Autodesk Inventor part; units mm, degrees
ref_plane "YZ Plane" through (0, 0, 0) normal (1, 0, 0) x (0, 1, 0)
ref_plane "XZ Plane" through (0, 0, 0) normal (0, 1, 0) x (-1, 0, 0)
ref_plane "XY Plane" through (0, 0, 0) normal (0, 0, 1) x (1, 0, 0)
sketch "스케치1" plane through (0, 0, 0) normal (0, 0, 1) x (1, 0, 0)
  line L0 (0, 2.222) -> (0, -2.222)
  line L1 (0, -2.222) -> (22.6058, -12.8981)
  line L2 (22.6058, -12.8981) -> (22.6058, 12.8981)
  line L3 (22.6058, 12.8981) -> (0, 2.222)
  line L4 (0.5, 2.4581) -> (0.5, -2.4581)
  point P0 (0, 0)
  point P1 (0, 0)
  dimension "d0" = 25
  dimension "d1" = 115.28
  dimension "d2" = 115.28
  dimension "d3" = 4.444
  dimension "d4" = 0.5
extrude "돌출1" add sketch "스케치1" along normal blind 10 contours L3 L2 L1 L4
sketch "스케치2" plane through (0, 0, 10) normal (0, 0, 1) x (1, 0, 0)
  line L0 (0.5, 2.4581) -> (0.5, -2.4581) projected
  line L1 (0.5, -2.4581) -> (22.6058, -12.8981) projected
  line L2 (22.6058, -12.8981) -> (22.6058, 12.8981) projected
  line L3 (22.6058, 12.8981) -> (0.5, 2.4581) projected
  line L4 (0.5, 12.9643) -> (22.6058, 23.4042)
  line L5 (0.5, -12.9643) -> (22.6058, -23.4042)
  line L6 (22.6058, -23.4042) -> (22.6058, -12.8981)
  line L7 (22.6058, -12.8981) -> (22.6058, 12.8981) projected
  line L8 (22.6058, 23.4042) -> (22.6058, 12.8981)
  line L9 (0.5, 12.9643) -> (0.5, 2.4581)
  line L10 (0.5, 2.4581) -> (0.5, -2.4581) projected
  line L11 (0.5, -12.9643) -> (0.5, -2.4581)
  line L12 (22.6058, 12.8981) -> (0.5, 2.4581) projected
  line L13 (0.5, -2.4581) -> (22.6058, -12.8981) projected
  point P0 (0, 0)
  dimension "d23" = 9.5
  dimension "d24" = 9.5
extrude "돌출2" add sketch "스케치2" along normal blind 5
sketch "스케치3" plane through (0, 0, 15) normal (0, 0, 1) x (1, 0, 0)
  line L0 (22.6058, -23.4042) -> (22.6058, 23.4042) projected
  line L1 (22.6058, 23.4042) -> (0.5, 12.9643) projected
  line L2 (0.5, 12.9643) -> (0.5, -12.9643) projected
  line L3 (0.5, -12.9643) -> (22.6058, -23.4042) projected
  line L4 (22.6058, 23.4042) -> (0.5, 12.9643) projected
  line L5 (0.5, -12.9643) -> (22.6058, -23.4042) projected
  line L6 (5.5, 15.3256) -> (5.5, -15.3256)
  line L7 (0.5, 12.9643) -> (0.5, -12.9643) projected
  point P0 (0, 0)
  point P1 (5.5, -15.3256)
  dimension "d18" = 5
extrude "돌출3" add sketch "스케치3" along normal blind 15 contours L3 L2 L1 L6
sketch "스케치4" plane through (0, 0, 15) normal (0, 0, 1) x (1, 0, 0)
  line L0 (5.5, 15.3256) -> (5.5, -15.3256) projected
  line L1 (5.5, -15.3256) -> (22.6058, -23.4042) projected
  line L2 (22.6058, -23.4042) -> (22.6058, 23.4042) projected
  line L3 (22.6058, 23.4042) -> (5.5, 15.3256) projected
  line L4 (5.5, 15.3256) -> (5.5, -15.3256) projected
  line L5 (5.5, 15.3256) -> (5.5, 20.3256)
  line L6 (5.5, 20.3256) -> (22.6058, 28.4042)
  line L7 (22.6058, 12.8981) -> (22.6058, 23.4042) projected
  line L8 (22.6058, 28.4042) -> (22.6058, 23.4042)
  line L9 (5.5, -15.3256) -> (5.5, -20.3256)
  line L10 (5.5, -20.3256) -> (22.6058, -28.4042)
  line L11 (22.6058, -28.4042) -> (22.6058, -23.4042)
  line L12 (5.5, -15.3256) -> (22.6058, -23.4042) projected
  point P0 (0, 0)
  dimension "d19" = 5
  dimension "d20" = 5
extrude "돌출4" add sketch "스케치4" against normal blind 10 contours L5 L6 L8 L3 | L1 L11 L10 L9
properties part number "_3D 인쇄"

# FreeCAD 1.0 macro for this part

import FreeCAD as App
import Part
import Sketcher
Q = App.Units.Quantity

doc = App.newDocument("Part")
body = doc.addObject("PartDesign::Body", "Body")

sketch1 = body.newObject("Sketcher::SketchObject", "Sketch")
sketch1.AttachmentSupport = (doc.getObject("XY_Plane"), [""])
sketch1.MapMode = "FlatFace"
sketch1.addGeometry(Part.LineSegment(App.Vector(22.6, 12.9, 0), App.Vector(0.5, 2.5, 0)), False)
sketch1.addGeometry(Part.LineSegment(App.Vector(0.5, 2.5, 0), App.Vector(0.5, -2.5, 0)), False)
sketch1.addGeometry(Part.LineSegment(App.Vector(0.5, -2.5, 0), App.Vector(22.6, -12.9, 0)), False)
sketch1.addGeometry(Part.LineSegment(App.Vector(22.6, -12.9, 0), App.Vector(22.6, 12.9, 0)), False)
sketch1.addConstraint(Sketcher.Constraint("Coincident", 0, 2, 1, 1))
sketch1.addConstraint(Sketcher.Constraint("Coincident", 1, 2, 2, 1))
sketch1.addConstraint(Sketcher.Constraint("Coincident", 2, 2, 3, 1))
sketch1.addConstraint(Sketcher.Constraint("Coincident", 3, 2, 0, 1))
sketch1.addConstraint(Sketcher.Constraint("Vertical", 1))
sketch1.addConstraint(Sketcher.Constraint("Vertical", 3))
sketch1.addConstraint(Sketcher.Constraint("Equal", 0, 2))
sketch1.addConstraint(Sketcher.Constraint("DistanceX", -1, 1, 0, 2, Q("0.5 mm")))
sketch1.addConstraint(Sketcher.Constraint("Angle", 0, Q("-154.72 deg")))
sketch1.addConstraint(Sketcher.Constraint("DistanceY", 2, 2, 1, 2, Q("10.44 mm")))
sketch1.addConstraint(Sketcher.Constraint("DistanceY", 1, 2, 1, 1, Q("4.9162 mm")))
sketch1.addConstraint(Sketcher.Constraint("DistanceY", 1, 2, -1, 1, Q("2.458 mm")))
pad1 = body.newObject("PartDesign::Pad", "Pad")
pad1.Profile = sketch1
pad1.Length = 10

sketch2 = body.newObject("Sketcher::SketchObject", "Sketch001")
sketch2.AttachmentSupport = (doc.getObject("XY_Plane"), [""])
sketch2.MapMode = "FlatFace"
sketch2.AttachmentOffset = App.Placement(App.Vector(0, 0, 10), App.Rotation())
sketch2.addGeometry(Part.LineSegment(App.Vector(23, 23, 0), App.Vector(0, 13, 0)), False)
sketch2.addGeometry(Part.LineSegment(App.Vector(0, 13, 0), App.Vector(0, -13, 0)), False)
sketch2.addGeometry(Part.LineSegment(App.Vector(0, -13, 0), App.Vector(23, -23, 0)), False)
sketch2.addGeometry(Part.LineSegment(App.Vector(23, -23, 0), App.Vector(23, 23, 0)), False)
sketch2.addConstraint(Sketcher.Constraint("Coincident", 0, 2, 1, 1))
sketch2.addConstraint(Sketcher.Constraint("Coincident", 1, 2, 2, 1))
sketch2.addConstraint(Sketcher.Constraint("Coincident", 2, 2, 3, 1))
sketch2.addConstraint(Sketcher.Constraint("Coincident", 3, 2, 0, 1))
sketch2.addConstraint(Sketcher.Constraint("Vertical", 1))
sketch2.addConstraint(Sketcher.Constraint("Vertical", 3))
sketch2.addConstraint(Sketcher.Constraint("Equal", 0, 2))
sketch2.addConstraint(Sketcher.Constraint("DistanceX", -1, 1, 0, 2, Q("0.5 mm")))
sketch2.addConstraint(Sketcher.Constraint("Angle", 0, Q("-154.72 deg")))
sketch2.addConstraint(Sketcher.Constraint("DistanceY", 2, 2, 1, 2, Q("10.44 mm")))
sketch2.addConstraint(Sketcher.Constraint("DistanceY", 1, 2, 1, 1, Q("25.9286 mm")))
sketch2.addConstraint(Sketcher.Constraint("DistanceY", -1, 1, 0, 2, Q("12.9643 mm")))
pad2 = body.newObject("PartDesign::Pad", "Pad001")
pad2.Profile = sketch2
pad2.Length = 5

sketch3 = body.newObject("Sketcher::SketchObject", "Sketch002")
sketch3.AttachmentSupport = (doc.getObject("XY_Plane"), [""])
sketch3.MapMode = "FlatFace"
sketch3.AttachmentOffset = App.Placement(App.Vector(0, 0, 15), App.Rotation())
sketch3.addGeometry(Part.LineSegment(App.Vector(0, -13, 0), App.Vector(5, -15, 0)), False)
sketch3.addGeometry(Part.LineSegment(App.Vector(6, -15, 0), App.Vector(6, 15, 0)), False)
sketch3.addGeometry(Part.LineSegment(App.Vector(5, 15, 0), App.Vector(0, 13, 0)), False)
sketch3.addGeometry(Part.LineSegment(App.Vector(0, 13, 0), App.Vector(0, -13, 0)), False)
sketch3.addConstraint(Sketcher.Constraint("Coincident", 0, 2, 1, 1))
sketch3.addConstraint(Sketcher.Constraint("Coincident", 1, 2, 2, 1))
sketch3.addConstraint(Sketcher.Constraint("Coincident", 2, 2, 3, 1))
sketch3.addConstraint(Sketcher.Constraint("Coincident", 3, 2, 0, 1))
sketch3.addConstraint(Sketcher.Constraint("Vertical", 1))
sketch3.addConstraint(Sketcher.Constraint("Vertical", 3))
sketch3.addConstraint(Sketcher.Constraint("Equal", 0, 2))
sketch3.addConstraint(Sketcher.Constraint("DistanceX", 2, 2, 1, 2, Q("5 mm")))
sketch3.addConstraint(Sketcher.Constraint("DistanceX", -1, 1, 0, 2, Q("5.5 mm")))
sketch3.addConstraint(Sketcher.Constraint("Angle", 0, Q("-25.28 deg")))
sketch3.addConstraint(Sketcher.Constraint("DistanceY", 0, 2, 2, 2, Q("28.29 mm")))
sketch3.addConstraint(Sketcher.Constraint("DistanceY", 0, 2, -1, 1, Q("15.3256 mm")))
pad3 = body.newObject("PartDesign::Pad", "Pad002")
pad3.Profile = sketch3
pad3.Length = 15

sketch4 = body.newObject("Sketcher::SketchObject", "Sketch003")
sketch4.AttachmentSupport = (doc.getObject("XY_Plane"), [""])
sketch4.MapMode = "FlatFace"
sketch4.AttachmentOffset = App.Placement(App.Vector(0, 0, 15), App.Rotation())
sketch4.addGeometry(Part.LineSegment(App.Vector(6, 20, 0), App.Vector(6, 15, 0)), False)
sketch4.addGeometry(Part.LineSegment(App.Vector(6, 15, 0), App.Vector(23, 23, 0)), False)
sketch4.addGeometry(Part.LineSegment(App.Vector(23, 23, 0), App.Vector(23, 28, 0)), False)
sketch4.addGeometry(Part.LineSegment(App.Vector(23, 28, 0), App.Vector(6, 20, 0)), False)
sketch4.addGeometry(Part.LineSegment(App.Vector(23, -23, 0), App.Vector(6, -15, 0)), False)
sketch4.addGeometry(Part.LineSegment(App.Vector(6, -15, 0), App.Vector(6, -20, 0)), False)
sketch4.addGeometry(Part.LineSegment(App.Vector(6, -20, 0), App.Vector(23, -28, 0)), False)
sketch4.addGeometry(Part.LineSegment(App.Vector(23, -28, 0), App.Vector(23, -23, 0)), False)
sketch4.addConstraint(Sketcher.Constraint("Coincident", 0, 2, 1, 1))
sketch4.addConstraint(Sketcher.Constraint("Coincident", 1, 2, 2, 1))
sketch4.addConstraint(Sketcher.Constraint("Coincident", 2, 2, 3, 1))
sketch4.addConstraint(Sketcher.Constraint("Coincident", 3, 2, 0, 1))
sketch4.addConstraint(Sketcher.Constraint("Coincident", 4, 2, 5, 1))
sketch4.addConstraint(Sketcher.Constraint("Coincident", 5, 2, 6, 1))
sketch4.addConstraint(Sketcher.Constraint("Coincident", 6, 2, 7, 1))
sketch4.addConstraint(Sketcher.Constraint("Coincident", 7, 2, 4, 1))
sketch4.addConstraint(Sketcher.Constraint("Vertical", 0))
sketch4.addConstraint(Sketcher.Constraint("Vertical", 2))
sketch4.addConstraint(Sketcher.Constraint("Vertical", 5))
sketch4.addConstraint(Sketcher.Constraint("Vertical", 7))
sketch4.addConstraint(Sketcher.Constraint("Symmetric", 0, 2, 4, 2, -1))
sketch4.addConstraint(Sketcher.Constraint("Symmetric", 2, 2, 6, 2, -1))
sketch4.addConstraint(Sketcher.Constraint("Parallel", 1, 3))
sketch4.addConstraint(Sketcher.Constraint("Parallel", 4, 6))
sketch4.addConstraint(Sketcher.Constraint("Equal", 2, 5))
sketch4.addConstraint(Sketcher.Constraint("DistanceY", 0, 2, 0, 1, Q("5 mm")))
sketch4.addConstraint(Sketcher.Constraint("DistanceX", -1, 1, 0, 2, Q("5.5 mm")))
sketch4.addConstraint(Sketcher.Constraint("Angle", 1, Q("25.28 deg")))
sketch4.addConstraint(Sketcher.Constraint("Distance", 1, Q("18.9175 mm")))
sketch4.addConstraint(Sketcher.Constraint("DistanceY", -1, 1, 0, 2, Q("15.3256 mm")))
pad4 = body.newObject("PartDesign::Pad", "Pad003")
pad4.Profile = sketch4
pad4.Length = 10
pad4.Reversed = True

doc.recompute()
